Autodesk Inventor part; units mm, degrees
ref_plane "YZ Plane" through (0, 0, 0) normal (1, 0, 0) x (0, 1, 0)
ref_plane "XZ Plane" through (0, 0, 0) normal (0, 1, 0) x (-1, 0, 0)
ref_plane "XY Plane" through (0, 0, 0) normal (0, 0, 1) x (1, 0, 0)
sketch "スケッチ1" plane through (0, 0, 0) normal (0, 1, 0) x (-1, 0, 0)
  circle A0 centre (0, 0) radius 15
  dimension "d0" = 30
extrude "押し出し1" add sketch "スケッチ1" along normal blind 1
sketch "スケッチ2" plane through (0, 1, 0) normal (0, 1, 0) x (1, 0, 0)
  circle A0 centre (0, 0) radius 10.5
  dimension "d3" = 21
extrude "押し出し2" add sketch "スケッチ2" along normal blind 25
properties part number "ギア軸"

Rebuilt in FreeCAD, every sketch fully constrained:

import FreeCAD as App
import Part
import Sketcher

V = App.Vector
Q = App.Units.Quantity

doc = App.newDocument("Part")
body = doc.addObject("PartDesign::Body", "Body")

# Sketch on XZ plane
sketch1 = body.newObject("Sketcher::SketchObject", "Sketch")
sketch1.AttachmentSupport = (doc.getObject("XZ_Plane"), [""])
sketch1.MapMode = "FlatFace"
sketch1.addGeometry(Part.Circle(V(0, 0, 0), V(0, 0, 1), 15), False)
sketch1.addConstraint([
    Sketcher.Constraint("Coincident", 0, 3, -1, 1),
    Sketcher.Constraint("Diameter", 0, Q("30 mm")),
])
pad1 = body.newObject("PartDesign::Pad", "Pad")
pad1.Profile = sketch1
pad1.Length = 1
pad1.Reversed = True

# Sketch on XZ plane
sketch2 = body.newObject("Sketcher::SketchObject", "Sketch001")
sketch2.AttachmentSupport = (doc.getObject("XZ_Plane"), [""])
sketch2.MapMode = "FlatFace"
sketch2.AttachmentOffset = App.Placement(V(0, 0, -1), App.Rotation())
sketch2.addGeometry(Part.Circle(V(0, 0, 0), V(0, 0, 1), 10.5), False)
sketch2.addConstraint([
    Sketcher.Constraint("Coincident", 0, 3, -1, 1),
    Sketcher.Constraint("Diameter", 0, Q("21 mm")),
])
pad2 = body.newObject("PartDesign::Pad", "Pad001")
pad2.Profile = sketch2
pad2.Length = 25
pad2.Reversed = True

doc.recompute()
